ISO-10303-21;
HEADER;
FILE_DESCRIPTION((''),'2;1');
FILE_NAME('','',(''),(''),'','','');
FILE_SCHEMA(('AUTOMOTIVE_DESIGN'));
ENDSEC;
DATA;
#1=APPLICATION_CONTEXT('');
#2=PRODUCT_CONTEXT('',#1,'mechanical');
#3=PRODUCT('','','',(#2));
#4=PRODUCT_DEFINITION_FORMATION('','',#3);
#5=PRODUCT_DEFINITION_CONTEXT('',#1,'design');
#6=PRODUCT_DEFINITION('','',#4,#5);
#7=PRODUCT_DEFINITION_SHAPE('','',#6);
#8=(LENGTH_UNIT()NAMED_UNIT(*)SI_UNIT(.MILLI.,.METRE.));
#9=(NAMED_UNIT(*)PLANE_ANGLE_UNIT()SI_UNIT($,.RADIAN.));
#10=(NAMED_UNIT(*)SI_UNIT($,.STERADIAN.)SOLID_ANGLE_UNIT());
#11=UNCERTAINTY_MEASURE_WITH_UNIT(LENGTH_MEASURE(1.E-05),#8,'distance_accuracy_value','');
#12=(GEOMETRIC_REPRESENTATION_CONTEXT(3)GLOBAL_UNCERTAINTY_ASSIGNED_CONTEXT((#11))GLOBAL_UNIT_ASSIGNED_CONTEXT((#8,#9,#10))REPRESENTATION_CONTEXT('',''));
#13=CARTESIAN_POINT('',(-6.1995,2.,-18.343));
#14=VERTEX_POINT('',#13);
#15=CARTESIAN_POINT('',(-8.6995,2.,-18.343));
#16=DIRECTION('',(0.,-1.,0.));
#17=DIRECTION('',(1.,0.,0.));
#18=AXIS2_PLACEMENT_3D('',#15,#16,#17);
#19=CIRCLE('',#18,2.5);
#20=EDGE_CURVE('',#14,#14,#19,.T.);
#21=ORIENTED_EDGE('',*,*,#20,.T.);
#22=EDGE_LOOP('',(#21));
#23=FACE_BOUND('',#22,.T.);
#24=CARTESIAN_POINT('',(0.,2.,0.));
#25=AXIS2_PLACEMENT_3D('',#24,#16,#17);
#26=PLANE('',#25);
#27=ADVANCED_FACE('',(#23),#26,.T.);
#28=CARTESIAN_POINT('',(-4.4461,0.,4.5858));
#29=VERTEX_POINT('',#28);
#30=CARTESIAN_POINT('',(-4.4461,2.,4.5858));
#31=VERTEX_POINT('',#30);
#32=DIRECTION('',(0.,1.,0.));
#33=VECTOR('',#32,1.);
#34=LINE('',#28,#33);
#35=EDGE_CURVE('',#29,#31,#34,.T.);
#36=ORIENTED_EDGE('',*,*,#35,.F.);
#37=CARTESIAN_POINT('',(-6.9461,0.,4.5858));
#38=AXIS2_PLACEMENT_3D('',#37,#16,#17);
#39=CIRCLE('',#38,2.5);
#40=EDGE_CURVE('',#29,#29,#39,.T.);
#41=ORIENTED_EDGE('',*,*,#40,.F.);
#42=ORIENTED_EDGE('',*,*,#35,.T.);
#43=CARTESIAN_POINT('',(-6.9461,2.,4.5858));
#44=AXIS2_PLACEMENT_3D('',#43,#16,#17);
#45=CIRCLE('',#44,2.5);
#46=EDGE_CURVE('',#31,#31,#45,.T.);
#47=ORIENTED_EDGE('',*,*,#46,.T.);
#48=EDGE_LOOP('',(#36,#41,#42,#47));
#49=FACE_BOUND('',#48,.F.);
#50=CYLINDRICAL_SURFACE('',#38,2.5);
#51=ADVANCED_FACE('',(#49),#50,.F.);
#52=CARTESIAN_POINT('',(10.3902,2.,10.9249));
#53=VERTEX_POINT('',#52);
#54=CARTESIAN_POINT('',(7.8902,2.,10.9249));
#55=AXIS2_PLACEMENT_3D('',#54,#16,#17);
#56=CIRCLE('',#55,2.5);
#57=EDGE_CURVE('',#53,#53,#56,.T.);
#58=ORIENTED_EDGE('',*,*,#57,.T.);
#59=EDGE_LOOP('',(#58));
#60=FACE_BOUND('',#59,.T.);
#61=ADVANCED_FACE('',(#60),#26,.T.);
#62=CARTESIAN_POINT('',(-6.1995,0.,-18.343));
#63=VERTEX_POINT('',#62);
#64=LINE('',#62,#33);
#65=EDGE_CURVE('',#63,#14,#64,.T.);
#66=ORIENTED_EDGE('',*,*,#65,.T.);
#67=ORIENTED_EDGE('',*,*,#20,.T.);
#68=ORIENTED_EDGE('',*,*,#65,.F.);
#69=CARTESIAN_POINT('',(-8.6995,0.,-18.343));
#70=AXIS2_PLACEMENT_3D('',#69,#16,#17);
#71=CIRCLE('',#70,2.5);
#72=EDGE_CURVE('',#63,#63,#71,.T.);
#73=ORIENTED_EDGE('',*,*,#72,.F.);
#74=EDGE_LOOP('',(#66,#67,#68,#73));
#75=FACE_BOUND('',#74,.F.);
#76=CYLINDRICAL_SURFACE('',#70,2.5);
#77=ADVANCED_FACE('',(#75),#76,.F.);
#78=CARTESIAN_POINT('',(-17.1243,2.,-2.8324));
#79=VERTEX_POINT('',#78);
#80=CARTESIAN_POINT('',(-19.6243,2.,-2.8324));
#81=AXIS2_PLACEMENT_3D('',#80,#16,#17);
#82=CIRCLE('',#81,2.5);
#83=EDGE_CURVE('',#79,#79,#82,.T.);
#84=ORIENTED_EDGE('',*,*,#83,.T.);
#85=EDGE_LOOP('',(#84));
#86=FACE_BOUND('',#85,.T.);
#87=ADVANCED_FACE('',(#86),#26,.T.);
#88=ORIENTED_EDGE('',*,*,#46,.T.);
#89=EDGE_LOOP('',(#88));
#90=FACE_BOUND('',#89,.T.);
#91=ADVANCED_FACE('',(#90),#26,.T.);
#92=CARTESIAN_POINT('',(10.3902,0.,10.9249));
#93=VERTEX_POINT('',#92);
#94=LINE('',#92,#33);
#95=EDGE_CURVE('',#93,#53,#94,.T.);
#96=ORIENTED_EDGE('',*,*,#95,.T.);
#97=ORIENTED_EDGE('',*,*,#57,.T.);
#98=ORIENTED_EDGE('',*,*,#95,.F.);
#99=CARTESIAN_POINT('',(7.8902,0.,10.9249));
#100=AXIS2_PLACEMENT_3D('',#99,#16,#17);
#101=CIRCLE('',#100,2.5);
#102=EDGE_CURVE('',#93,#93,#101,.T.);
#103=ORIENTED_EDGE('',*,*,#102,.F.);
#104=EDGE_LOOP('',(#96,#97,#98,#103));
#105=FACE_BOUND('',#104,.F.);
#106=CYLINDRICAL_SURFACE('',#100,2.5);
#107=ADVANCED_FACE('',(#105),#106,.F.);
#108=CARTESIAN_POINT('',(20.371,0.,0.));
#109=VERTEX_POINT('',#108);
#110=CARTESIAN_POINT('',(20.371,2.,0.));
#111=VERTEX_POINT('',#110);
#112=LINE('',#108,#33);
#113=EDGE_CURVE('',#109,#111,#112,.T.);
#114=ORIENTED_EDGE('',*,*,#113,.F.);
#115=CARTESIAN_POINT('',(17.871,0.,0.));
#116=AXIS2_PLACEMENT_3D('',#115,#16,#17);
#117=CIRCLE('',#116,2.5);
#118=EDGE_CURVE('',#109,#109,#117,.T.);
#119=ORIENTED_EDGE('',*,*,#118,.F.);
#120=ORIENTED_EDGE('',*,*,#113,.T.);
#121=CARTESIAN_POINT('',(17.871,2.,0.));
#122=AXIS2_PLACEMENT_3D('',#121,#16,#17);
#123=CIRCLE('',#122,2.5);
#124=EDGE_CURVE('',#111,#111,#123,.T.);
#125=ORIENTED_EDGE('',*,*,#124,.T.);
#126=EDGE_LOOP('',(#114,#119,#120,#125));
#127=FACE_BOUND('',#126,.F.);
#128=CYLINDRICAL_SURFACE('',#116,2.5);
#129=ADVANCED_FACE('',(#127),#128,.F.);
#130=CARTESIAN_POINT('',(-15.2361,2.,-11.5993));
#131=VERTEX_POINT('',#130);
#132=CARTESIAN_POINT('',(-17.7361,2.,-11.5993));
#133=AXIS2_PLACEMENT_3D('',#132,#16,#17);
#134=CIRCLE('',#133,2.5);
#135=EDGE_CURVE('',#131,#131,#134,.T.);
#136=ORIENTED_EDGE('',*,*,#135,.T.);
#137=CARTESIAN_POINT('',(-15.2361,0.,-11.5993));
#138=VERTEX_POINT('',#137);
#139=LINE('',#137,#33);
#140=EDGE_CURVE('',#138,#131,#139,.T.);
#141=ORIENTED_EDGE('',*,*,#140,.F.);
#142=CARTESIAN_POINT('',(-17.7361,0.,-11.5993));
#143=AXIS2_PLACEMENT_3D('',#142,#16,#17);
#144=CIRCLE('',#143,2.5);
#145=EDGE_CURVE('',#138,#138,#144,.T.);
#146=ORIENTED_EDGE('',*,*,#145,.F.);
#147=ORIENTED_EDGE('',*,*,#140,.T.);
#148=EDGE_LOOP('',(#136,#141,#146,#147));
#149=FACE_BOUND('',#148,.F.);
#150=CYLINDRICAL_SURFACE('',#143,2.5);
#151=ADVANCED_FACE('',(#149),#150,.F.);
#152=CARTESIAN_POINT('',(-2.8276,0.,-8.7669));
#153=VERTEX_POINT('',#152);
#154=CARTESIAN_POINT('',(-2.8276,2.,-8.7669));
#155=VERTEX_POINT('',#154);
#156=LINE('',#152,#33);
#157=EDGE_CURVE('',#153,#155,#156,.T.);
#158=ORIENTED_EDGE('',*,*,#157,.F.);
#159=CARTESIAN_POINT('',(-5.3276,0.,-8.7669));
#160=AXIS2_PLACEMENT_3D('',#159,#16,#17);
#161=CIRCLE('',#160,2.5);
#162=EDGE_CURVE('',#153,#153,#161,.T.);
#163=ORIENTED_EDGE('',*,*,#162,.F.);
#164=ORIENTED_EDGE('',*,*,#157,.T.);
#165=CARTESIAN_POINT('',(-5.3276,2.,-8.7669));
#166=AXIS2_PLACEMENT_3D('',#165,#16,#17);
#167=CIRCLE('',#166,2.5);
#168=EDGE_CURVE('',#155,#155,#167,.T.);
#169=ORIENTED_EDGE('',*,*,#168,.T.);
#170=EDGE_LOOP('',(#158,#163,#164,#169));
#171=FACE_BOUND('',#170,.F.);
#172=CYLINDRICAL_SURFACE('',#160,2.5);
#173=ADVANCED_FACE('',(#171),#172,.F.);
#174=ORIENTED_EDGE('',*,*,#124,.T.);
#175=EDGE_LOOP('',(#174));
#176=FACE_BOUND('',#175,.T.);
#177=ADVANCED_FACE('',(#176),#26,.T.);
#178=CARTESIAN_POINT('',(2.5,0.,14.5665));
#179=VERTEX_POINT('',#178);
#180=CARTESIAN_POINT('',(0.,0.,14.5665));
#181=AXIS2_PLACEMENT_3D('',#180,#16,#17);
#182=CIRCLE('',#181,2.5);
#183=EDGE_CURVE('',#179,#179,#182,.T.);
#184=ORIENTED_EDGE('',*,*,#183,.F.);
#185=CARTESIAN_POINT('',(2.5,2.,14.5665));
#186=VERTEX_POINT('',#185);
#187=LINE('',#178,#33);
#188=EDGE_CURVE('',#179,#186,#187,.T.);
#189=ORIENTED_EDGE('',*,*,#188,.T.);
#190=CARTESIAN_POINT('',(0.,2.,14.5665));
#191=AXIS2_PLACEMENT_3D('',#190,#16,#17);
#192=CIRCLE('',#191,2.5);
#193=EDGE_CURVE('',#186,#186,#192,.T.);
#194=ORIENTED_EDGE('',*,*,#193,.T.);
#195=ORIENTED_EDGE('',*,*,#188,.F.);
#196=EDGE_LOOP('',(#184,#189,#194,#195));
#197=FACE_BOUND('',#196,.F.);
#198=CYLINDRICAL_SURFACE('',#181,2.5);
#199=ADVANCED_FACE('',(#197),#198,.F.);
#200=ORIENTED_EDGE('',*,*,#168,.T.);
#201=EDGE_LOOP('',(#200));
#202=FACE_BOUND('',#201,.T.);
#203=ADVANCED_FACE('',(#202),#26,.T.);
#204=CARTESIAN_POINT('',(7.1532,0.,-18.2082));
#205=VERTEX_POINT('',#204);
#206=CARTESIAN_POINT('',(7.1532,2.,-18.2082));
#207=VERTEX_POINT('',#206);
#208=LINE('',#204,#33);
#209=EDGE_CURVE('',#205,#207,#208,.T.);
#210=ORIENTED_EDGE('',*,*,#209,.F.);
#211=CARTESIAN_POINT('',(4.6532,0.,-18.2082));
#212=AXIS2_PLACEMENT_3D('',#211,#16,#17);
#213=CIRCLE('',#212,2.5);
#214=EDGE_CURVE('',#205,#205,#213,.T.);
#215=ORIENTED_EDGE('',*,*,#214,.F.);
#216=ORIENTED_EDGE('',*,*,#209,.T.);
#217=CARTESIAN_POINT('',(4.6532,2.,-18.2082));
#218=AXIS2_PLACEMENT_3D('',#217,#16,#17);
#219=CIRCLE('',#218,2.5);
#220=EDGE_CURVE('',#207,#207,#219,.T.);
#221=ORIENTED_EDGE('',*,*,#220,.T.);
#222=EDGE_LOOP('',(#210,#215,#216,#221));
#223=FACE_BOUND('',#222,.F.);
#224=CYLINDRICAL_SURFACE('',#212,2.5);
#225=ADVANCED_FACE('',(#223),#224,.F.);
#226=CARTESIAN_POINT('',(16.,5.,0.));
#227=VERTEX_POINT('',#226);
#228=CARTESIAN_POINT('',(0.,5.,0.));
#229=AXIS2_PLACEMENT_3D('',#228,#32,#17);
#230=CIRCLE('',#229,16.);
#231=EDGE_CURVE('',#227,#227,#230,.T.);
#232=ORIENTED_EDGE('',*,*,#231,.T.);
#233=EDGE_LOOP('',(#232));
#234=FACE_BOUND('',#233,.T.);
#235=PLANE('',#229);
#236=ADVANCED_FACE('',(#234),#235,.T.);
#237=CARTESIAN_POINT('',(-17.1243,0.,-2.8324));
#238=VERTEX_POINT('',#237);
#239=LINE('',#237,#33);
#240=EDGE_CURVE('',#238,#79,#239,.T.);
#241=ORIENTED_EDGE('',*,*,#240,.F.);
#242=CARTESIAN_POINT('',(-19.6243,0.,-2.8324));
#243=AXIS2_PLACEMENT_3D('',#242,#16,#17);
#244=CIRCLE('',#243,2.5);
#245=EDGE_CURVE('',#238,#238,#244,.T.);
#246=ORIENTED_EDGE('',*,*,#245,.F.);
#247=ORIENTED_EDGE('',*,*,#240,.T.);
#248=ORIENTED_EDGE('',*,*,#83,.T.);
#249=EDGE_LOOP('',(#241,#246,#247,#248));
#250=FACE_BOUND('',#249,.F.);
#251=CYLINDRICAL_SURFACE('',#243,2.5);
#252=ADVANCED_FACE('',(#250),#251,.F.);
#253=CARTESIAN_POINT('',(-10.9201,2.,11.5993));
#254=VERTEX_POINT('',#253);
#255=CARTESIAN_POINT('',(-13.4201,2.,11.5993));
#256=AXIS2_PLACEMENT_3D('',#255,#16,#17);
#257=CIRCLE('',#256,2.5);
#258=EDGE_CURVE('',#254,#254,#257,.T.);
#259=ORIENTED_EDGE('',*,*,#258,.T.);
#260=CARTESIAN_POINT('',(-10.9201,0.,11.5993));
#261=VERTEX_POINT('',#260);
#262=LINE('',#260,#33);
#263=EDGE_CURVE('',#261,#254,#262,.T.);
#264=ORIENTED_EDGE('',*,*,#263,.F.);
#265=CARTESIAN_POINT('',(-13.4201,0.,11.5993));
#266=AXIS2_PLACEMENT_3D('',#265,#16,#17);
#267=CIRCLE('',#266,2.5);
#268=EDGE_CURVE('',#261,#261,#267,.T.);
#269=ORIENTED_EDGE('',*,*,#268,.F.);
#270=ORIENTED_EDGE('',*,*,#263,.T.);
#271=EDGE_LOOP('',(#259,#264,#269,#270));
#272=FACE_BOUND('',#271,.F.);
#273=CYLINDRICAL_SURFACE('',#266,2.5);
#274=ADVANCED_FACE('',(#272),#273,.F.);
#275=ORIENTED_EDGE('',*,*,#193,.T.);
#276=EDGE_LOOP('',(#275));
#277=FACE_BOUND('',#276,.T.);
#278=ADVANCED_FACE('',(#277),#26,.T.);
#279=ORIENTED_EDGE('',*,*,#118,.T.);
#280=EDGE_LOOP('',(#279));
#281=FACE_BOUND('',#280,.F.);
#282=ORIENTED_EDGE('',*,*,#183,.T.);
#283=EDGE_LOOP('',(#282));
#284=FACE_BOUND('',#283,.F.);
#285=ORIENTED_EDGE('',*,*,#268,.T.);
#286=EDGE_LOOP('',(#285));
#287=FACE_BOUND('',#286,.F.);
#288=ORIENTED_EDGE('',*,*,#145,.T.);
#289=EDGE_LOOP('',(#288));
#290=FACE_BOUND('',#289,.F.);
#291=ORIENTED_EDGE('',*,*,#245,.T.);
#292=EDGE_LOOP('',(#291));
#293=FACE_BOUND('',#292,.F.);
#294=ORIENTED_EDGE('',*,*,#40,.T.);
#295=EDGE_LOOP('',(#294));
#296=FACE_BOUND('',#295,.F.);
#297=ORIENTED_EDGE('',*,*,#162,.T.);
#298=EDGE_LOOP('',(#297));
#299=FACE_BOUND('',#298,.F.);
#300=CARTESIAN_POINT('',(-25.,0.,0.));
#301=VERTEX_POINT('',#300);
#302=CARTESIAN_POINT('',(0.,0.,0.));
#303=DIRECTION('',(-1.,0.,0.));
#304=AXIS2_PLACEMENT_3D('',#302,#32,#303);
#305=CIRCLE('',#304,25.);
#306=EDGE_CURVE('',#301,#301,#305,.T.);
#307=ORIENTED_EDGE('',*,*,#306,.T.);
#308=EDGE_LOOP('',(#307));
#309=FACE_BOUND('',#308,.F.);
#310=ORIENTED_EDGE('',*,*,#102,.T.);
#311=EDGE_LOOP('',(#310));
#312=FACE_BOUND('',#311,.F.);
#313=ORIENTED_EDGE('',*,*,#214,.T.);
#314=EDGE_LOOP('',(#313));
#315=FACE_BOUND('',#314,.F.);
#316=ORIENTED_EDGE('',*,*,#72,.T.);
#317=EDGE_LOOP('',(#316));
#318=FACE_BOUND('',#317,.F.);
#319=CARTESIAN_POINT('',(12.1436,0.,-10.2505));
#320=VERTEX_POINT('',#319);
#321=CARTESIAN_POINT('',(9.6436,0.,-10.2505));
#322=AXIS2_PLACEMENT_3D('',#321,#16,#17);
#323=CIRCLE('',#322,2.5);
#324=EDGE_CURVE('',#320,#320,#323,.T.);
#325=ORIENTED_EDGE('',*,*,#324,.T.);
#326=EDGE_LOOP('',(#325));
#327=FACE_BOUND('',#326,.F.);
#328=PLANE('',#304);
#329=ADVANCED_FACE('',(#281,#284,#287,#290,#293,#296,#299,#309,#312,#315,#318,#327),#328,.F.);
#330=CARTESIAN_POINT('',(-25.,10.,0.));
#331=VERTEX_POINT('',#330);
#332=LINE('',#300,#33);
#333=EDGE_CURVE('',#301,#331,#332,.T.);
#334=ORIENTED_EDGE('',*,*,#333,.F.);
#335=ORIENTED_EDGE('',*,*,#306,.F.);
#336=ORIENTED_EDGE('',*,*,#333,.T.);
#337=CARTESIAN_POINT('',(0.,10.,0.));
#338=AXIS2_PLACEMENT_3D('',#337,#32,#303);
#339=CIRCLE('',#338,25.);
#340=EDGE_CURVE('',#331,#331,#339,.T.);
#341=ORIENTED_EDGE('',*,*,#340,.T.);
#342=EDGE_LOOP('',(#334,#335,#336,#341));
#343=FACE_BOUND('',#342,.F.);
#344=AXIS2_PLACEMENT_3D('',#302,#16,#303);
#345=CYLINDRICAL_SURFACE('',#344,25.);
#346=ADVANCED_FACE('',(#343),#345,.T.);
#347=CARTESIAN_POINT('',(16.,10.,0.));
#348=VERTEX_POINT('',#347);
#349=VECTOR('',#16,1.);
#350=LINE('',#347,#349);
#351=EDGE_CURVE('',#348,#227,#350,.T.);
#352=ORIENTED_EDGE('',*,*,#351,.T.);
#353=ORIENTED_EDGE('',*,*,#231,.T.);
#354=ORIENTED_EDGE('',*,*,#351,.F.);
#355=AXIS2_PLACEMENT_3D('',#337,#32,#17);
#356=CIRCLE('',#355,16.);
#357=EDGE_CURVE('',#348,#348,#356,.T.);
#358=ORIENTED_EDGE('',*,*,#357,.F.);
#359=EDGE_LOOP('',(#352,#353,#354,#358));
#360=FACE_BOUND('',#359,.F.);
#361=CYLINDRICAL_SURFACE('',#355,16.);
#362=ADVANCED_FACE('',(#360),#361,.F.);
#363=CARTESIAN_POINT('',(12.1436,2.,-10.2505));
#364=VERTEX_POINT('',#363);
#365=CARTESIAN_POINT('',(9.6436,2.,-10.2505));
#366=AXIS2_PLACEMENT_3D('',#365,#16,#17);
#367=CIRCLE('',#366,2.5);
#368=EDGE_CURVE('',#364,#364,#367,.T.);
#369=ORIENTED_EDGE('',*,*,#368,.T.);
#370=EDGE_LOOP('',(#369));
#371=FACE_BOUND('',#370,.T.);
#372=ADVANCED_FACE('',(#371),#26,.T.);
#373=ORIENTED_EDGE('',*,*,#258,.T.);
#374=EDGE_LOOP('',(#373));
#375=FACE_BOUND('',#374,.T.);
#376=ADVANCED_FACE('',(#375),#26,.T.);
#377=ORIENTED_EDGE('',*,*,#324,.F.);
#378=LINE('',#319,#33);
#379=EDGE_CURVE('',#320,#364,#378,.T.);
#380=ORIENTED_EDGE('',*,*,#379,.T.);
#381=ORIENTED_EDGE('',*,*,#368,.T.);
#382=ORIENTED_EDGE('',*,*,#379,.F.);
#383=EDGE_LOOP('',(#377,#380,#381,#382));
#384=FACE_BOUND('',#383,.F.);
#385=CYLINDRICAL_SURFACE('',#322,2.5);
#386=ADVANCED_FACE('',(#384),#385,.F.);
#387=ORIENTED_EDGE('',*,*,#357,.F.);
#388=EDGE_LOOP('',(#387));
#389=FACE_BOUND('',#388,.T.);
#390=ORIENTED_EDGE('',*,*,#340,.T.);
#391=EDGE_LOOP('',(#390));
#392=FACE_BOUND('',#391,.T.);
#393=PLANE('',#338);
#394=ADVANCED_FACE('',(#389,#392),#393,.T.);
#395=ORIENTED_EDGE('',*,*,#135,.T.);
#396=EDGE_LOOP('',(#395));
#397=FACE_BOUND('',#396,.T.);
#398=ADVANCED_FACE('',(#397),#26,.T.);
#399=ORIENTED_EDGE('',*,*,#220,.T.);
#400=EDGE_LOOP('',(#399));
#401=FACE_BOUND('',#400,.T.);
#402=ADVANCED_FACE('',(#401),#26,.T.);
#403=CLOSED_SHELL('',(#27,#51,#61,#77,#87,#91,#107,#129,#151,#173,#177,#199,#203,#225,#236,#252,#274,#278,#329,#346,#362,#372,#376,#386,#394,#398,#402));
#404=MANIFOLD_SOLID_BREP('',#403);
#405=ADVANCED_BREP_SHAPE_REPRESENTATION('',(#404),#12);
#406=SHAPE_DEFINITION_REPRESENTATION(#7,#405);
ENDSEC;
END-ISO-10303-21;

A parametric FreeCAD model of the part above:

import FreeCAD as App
import Part
import Sketcher

V = App.Vector

doc = App.newDocument("Part")
body = doc.addObject("PartDesign::Body", "Body")

sketch1 = body.newObject("Sketcher::SketchObject", "Sketch")
sketch1.AttachmentSupport = (doc.getObject("XZ_Plane"), [""])
sketch1.MapMode = "FlatFace"
sketch1.addGeometry(Part.Circle(V(0, 0, 0), V(0, 0, 1), 25), False)
sketch1.addConstraint(Sketcher.Constraint("Coincident", 0, 3, -1, 1))
sketch1.addConstraint(Sketcher.Constraint("Diameter", 0, 50.0))
pad1 = body.newObject("PartDesign::Pad", "Pad")
pad1.Profile = sketch1
pad1.Length = 10
pad1.Reversed = True

sketch2 = body.newObject("Sketcher::SketchObject", "Sketch001")
sketch2.AttachmentSupport = (doc.getObject("XZ_Plane"), [""])
sketch2.MapMode = "FlatFace"
sketch2.AttachmentOffset = App.Placement(V(0, 0, -10), App.Rotation())
sketch2.addGeometry(Part.Circle(V(0, 0, 0), V(0, 0, 1), 16), False)
sketch2.addConstraint(Sketcher.Constraint("Coincident", 0, 3, -1, 1))
sketch2.addConstraint(Sketcher.Constraint("Diameter", 0, 32.0))
pocket1 = body.newObject("PartDesign::Pocket", "Pocket")
pocket1.Profile = sketch2
pocket1.Length = 5
pocket1.Reversed = True

sketch3 = body.newObject("Sketcher::SketchObject", "Sketch002")
sketch3.AttachmentSupport = (doc.getObject("XZ_Plane"), [""])
sketch3.MapMode = "FlatFace"
sketch3.addGeometry(Part.Circle(V(-17.7, -11.6, 0), V(0, 0, 1), 2.5), False)
sketch3.addConstraint(Sketcher.Constraint("Diameter", 0, 5.0))
sketch3.addConstraint(Sketcher.Constraint("DistanceX", 0, 3, -1, 1, 17.736))
sketch3.addConstraint(Sketcher.Constraint("DistanceY", 0, 3, -1, 1, 11.5993))
pocket2 = body.newObject("PartDesign::Pocket", "Pocket001")
pocket2.Profile = sketch3
pocket2.Length = 2

sketch4 = body.newObject("Sketcher::SketchObject", "Sketch003")
sketch4.AttachmentSupport = (doc.getObject("XZ_Plane"), [""])
sketch4.MapMode = "FlatFace"
sketch4.addGeometry(Part.Circle(V(-19.6, -2.8, 0), V(0, 0, 1), 2.5), False)
sketch4.addConstraint(Sketcher.Constraint("Diameter", 0, 5.0))
sketch4.addConstraint(Sketcher.Constraint("DistanceX", 0, 3, -1, 1, 19.6243))
sketch4.addConstraint(Sketcher.Constraint("DistanceY", 0, 3, -1, 1, 2.8324))
pocket3 = body.newObject("PartDesign::Pocket", "Pocket002")
pocket3.Profile = sketch4
pocket3.Length = 2

sketch5 = body.newObject("Sketcher::SketchObject", "Sketch004")
sketch5.AttachmentSupport = (doc.getObject("XZ_Plane"), [""])
sketch5.MapMode = "FlatFace"
sketch5.addGeometry(Part.Circle(V(-8.7, -18.3, 0), V(0, 0, 1), 2.5), False)
sketch5.addConstraint(Sketcher.Constraint("Diameter", 0, 5.0))
sketch5.addConstraint(Sketcher.Constraint("DistanceY", 0, 3, -1, 1, 18.343))
sketch5.addConstraint(Sketcher.Constraint("DistanceX", 0, 3, -1, 1, 8.6995))
pocket4 = body.newObject("PartDesign::Pocket", "Pocket003")
pocket4.Profile = sketch5
pocket4.Length = 2

sketch6 = body.newObject("Sketcher::SketchObject", "Sketch005")
sketch6.AttachmentSupport = (doc.getObject("XZ_Plane"), [""])
sketch6.MapMode = "FlatFace"
sketch6.addGeometry(Part.Circle(V(4.7, -18.2, 0), V(0, 0, 1), 2.5), False)
sketch6.addConstraint(Sketcher.Constraint("Diameter", 0, 5.0))
sketch6.addConstraint(Sketcher.Constraint("DistanceX", -1, 1, 0, 3, 4.6532))
sketch6.addConstraint(Sketcher.Constraint("DistanceY", 0, 3, -1, 1, 18.2082))
pocket5 = body.newObject("PartDesign::Pocket", "Pocket004")
pocket5.Profile = sketch6
pocket5.Length = 2

sketch7 = body.newObject("Sketcher::SketchObject", "Sketch006")
sketch7.AttachmentSupport = (doc.getObject("XZ_Plane"), [""])
sketch7.MapMode = "FlatFace"
sketch7.addGeometry(Part.Circle(V(-5.3, -8.8, 0), V(0, 0, 1), 2.5), False)
sketch7.addConstraint(Sketcher.Constraint("Diameter", 0, 5.0))
sketch7.addConstraint(Sketcher.Constraint("DistanceY", 0, 3, -1, 1, 8.767))
sketch7.addConstraint(Sketcher.Constraint("DistanceX", 0, 3, -1, 1, 5.3276))
pocket6 = body.newObject("PartDesign::Pocket", "Pocket005")
pocket6.Profile = sketch7
pocket6.Length = 2

sketch8 = body.newObject("Sketcher::SketchObject", "Sketch007")
sketch8.AttachmentSupport = (doc.getObject("XZ_Plane"), [""])
sketch8.MapMode = "FlatFace"
sketch8.addGeometry(Part.Circle(V(9.6, -10.3, 0), V(0, 0, 1), 2.5), False)
sketch8.addConstraint(Sketcher.Constraint("Diameter", 0, 5.0))
sketch8.addConstraint(Sketcher.Constraint("DistanceX", -1, 1, 0, 3, 9.6436))
sketch8.addConstraint(Sketcher.Constraint("DistanceY", 0, 3, -1, 1, 10.2505))
pocket7 = body.newObject("PartDesign::Pocket", "Pocket006")
pocket7.Profile = sketch8
pocket7.Length = 2

sketch9 = body.newObject("Sketcher::SketchObject", "Sketch008")
sketch9.AttachmentSupport = (doc.getObject("XZ_Plane"), [""])
sketch9.MapMode = "FlatFace"
sketch9.addGeometry(Part.Circle(V(-6.9, 4.6, 0), V(0, 0, 1), 2.5), False)
sketch9.addConstraint(Sketcher.Constraint("Diameter", 0, 5.0))
sketch9.addConstraint(Sketcher.Constraint("DistanceX", 0, 3, -1, 1, 6.946))
sketch9.addConstraint(Sketcher.Constraint("DistanceY", -1, 1, 0, 3, 4.5858))
pocket8 = body.newObject("PartDesign::Pocket", "Pocket007")
pocket8.Profile = sketch9
pocket8.Length = 2

sketch10 = body.newObject("Sketcher::SketchObject", "Sketch009")
sketch10.AttachmentSupport = (doc.getObject("XZ_Plane"), [""])
sketch10.MapMode = "FlatFace"
sketch10.addGeometry(Part.Circle(V(7.9, 10.9, 0), V(0, 0, 1), 2.5), False)
sketch10.addConstraint(Sketcher.Constraint("Diameter", 0, 5.0))
sketch10.addConstraint(Sketcher.Constraint("DistanceY", -1, 1, 0, 3, 10.925))
sketch10.addConstraint(Sketcher.Constraint("DistanceX", -1, 1, 0, 3, 7.8902))
pocket9 = body.newObject("PartDesign::Pocket", "Pocket008")
pocket9.Profile = sketch10
pocket9.Length = 2

sketch11 = body.newObject("Sketcher::SketchObject", "Sketch010")
sketch11.AttachmentSupport = (doc.getObject("XZ_Plane"), [""])
sketch11.MapMode = "FlatFace"
sketch11.addGeometry(Part.Circle(V(-13.4, 11.6, 0), V(0, 0, 1), 2.5), False)
sketch11.addConstraint(Sketcher.Constraint("Diameter", 0, 5.0))
sketch11.addConstraint(Sketcher.Constraint("DistanceX", 0, 3, -1, 1, 13.42))
sketch11.addConstraint(Sketcher.Constraint("DistanceY", -1, 1, 0, 3, 11.5993))
pocket10 = body.newObject("PartDesign::Pocket", "Pocket009")
pocket10.Profile = sketch11
pocket10.Length = 2

sketch12 = body.newObject("Sketcher::SketchObject", "Sketch011")
sketch12.AttachmentSupport = (doc.getObject("XZ_Plane"), [""])
sketch12.MapMode = "FlatFace"
sketch12.addGeometry(Part.Circle(V(17.9, 0, 0), V(0, 0, 1), 2.5), False)
sketch12.addConstraint(Sketcher.Constraint("PointOnObject", 0, 3, -1))
sketch12.addConstraint(Sketcher.Constraint("Diameter", 0, 5.0))
sketch12.addConstraint(Sketcher.Constraint("DistanceX", -1, 1, 0, 3, 17.871))
pocket11 = body.newObject("PartDesign::Pocket", "Pocket010")
pocket11.Profile = sketch12
pocket11.Length = 2

sketch13 = body.newObject("Sketcher::SketchObject", "Sketch012")
sketch13.AttachmentSupport = (doc.getObject("XZ_Plane"), [""])
sketch13.MapMode = "FlatFace"
sketch13.addGeometry(Part.Circle(V(0, 14.6, 0), V(0, 0, 1), 2.5), False)
sketch13.addConstraint(Sketcher.Constraint("PointOnObject", 0, 3, -2))
sketch13.addConstraint(Sketcher.Constraint("Diameter", 0, 5.0))
sketch13.addConstraint(Sketcher.Constraint("DistanceY", -1, 1, 0, 3, 14.5665))
pocket12 = body.newObject("PartDesign::Pocket", "Pocket011")
pocket12.Profile = sketch13
pocket12.Length = 2

doc.recompute()
